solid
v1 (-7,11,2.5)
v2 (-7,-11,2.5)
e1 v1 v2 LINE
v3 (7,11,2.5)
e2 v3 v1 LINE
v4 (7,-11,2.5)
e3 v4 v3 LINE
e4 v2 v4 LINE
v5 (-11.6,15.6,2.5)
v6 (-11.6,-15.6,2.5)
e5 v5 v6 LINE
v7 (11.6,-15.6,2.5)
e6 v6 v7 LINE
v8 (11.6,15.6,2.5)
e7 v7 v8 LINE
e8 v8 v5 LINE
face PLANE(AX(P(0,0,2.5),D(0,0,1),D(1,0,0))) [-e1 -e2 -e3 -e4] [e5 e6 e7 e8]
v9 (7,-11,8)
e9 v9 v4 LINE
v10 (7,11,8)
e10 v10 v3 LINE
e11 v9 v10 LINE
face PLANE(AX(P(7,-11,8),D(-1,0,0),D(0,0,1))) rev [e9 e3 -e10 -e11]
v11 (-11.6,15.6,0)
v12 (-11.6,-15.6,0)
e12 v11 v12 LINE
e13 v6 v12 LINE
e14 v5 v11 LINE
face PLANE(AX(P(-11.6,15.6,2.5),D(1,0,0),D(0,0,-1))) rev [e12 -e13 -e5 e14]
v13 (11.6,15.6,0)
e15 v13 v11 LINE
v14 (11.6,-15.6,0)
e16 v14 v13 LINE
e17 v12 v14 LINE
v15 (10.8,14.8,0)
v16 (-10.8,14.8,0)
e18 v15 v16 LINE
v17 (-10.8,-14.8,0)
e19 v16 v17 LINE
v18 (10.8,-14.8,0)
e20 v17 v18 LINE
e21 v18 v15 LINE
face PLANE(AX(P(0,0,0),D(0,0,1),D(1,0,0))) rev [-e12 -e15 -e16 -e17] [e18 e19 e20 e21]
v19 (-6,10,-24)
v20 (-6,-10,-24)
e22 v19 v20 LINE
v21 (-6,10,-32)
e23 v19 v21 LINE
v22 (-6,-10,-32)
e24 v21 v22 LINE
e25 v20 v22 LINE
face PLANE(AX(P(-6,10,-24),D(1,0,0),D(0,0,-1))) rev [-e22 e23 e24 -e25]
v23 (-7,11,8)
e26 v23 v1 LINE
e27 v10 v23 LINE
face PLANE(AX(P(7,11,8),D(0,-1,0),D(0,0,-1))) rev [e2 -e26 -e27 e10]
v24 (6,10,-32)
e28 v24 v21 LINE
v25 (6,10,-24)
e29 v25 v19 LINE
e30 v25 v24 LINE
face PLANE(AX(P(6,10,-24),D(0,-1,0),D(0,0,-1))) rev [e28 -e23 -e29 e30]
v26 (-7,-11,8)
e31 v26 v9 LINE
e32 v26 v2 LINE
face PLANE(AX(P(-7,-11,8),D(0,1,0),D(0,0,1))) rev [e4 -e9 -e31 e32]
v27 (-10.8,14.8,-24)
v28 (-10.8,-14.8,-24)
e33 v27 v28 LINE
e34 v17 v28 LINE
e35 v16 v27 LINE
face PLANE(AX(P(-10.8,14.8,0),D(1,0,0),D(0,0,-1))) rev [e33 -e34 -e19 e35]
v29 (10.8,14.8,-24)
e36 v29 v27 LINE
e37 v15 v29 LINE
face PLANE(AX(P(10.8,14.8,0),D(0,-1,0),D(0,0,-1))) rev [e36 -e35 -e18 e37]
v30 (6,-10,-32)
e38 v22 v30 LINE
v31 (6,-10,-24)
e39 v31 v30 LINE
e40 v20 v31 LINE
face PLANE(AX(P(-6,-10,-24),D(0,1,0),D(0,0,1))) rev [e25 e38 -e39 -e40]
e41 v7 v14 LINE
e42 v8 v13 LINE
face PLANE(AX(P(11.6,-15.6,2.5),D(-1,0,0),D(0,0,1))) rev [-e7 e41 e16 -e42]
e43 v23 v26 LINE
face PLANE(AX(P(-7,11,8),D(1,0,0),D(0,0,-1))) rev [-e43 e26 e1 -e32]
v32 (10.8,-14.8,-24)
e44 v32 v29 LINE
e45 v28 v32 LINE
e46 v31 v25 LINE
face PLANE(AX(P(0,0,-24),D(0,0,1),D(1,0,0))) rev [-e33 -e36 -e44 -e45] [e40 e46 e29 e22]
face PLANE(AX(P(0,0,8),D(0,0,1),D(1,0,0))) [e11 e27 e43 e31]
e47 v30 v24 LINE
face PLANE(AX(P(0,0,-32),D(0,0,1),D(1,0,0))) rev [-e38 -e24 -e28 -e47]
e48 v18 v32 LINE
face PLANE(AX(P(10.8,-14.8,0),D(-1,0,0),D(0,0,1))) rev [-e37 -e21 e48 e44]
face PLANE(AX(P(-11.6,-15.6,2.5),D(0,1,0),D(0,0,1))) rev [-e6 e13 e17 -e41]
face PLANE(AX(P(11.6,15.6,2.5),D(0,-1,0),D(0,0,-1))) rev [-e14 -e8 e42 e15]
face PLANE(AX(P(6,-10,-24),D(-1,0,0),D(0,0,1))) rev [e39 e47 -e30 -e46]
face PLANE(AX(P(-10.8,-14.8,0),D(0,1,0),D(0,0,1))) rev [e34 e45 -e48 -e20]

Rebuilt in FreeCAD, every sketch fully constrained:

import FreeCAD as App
import Part
import Sketcher
from FreeCAD import Vector
Q = App.Units.Quantity


def add_polygon(sketch, points):
    """Adds a closed chain of lines whose ends are joined by coincident constraints."""
    first, n = sketch.GeometryCount, len(points)
    for a, b in zip(points, points[1:] + points[:1]):
        sketch.addGeometry(Part.LineSegment(App.Vector(*a, 0), App.Vector(*b, 0)), False)
    for i in range(n):
        sketch.addConstraint(Sketcher.Constraint("Coincident", first + i, 2, first + (i + 1) % n, 1))

doc = App.newDocument("Part")
params = doc.addObject("Spreadsheet::Sheet", "Params")
for row, (alias, value) in enumerate([
    ("sketch1_width", "23.2 mm"),
    ("sketch1_height", "31.2 mm"),
    ("pad1_length", "2.5 mm"),
    ("sketch2_width", "14 mm"),
    ("sketch2_height", "22 mm"),
    ("pad2_length", "5.5 mm"),
    ("sketch3_width", "21.6 mm"),
    ("sketch3_height", "29.6 mm"),
    ("pad3_length", "24 mm"),
    ("sketch4_width", "12 mm"),
    ("sketch4_height", "20 mm"),
    ("pad4_length", "8 mm"),
], start=1):
    params.set(f"A{row}", alias)
    params.set(f"B{row}", "=" + value)
    params.setAlias(f"B{row}", alias)

body = doc.addObject("PartDesign::Body", "Body")

# Sketch on XY plane
sketch1 = body.newObject("Sketcher::SketchObject", "Sketch")
sketch1.AttachmentSupport = (doc.getObject("XY_Plane"), [""])
sketch1.MapMode = "FlatFace"
add_polygon(sketch1, [(-12, 16), (-12, -16), (12, -16), (12, 16)])  # lines 0-3
sketch1.addConstraint([
    Sketcher.Constraint("Vertical", 0),
    Sketcher.Constraint("Horizontal", 1),
    Sketcher.Constraint("Vertical", 2),
    Sketcher.Constraint("Horizontal", 3),
    Sketcher.Constraint("Symmetric", 0, 2, 2, 2, -1, 1),
    Sketcher.Constraint("DistanceX", 1, 1, 1, 2, Q("23.2 mm")),
    Sketcher.Constraint("DistanceY", 0, 2, 0, 1, Q("31.2 mm")),
])
sketch1.setExpression("Constraints[9]", "Params.sketch1_width")
sketch1.setExpression("Constraints[10]", "Params.sketch1_height")
pad1 = body.newObject("PartDesign::Pad", "Pad")
pad1.Profile = sketch1
pad1.setExpression("Length", "Params.pad1_length")

# Sketch on XY plane
sketch2 = body.newObject("Sketcher::SketchObject", "Sketch001")
sketch2.AttachmentSupport = (doc.getObject("XY_Plane"), [""])
sketch2.MapMode = "FlatFace"
sketch2.AttachmentOffset = App.Placement(Vector(0, 0, 2.5), App.Rotation())
add_polygon(sketch2, [(-7, 11), (-7, -11), (7, -11), (7, 11)])  # lines 0-3
sketch2.addConstraint([
    Sketcher.Constraint("Vertical", 0),
    Sketcher.Constraint("Horizontal", 1),
    Sketcher.Constraint("Vertical", 2),
    Sketcher.Constraint("Horizontal", 3),
    Sketcher.Constraint("Symmetric", 0, 2, 2, 2, -1, 1),
    Sketcher.Constraint("DistanceX", 1, 1, 1, 2, Q("14 mm")),
    Sketcher.Constraint("DistanceY", 0, 2, 0, 1, Q("22 mm")),
])
sketch2.setExpression("Constraints[9]", "Params.sketch2_width")
sketch2.setExpression("Constraints[10]", "Params.sketch2_height")
pad2 = body.newObject("PartDesign::Pad", "Pad001")
pad2.Profile = sketch2
pad2.setExpression("Length", "Params.pad2_length")

# Sketch on XY plane
sketch3 = body.newObject("Sketcher::SketchObject", "Sketch002")
sketch3.AttachmentSupport = (doc.getObject("XY_Plane"), [""])
sketch3.MapMode = "FlatFace"
sketch3.AttachmentOffset = App.Placement(Vector(0, 0, -24), App.Rotation())
add_polygon(sketch3, [(-11, 15), (-11, -15), (11, -15), (11, 15)])  # lines 0-3
sketch3.addConstraint([
    Sketcher.Constraint("Vertical", 0),
    Sketcher.Constraint("Horizontal", 1),
    Sketcher.Constraint("Vertical", 2),
    Sketcher.Constraint("Horizontal", 3),
    Sketcher.Constraint("Symmetric", 0, 2, 2, 2, -1, 1),
    Sketcher.Constraint("DistanceX", 1, 1, 1, 2, Q("21.6 mm")),
    Sketcher.Constraint("DistanceY", 0, 2, 0, 1, Q("29.6 mm")),
])
sketch3.setExpression("Constraints[9]", "Params.sketch3_width")
sketch3.setExpression("Constraints[10]", "Params.sketch3_height")
pad3 = body.newObject("PartDesign::Pad", "Pad002")
pad3.Profile = sketch3
pad3.setExpression("Length", "Params.pad3_length")

# Sketch on XY plane
sketch4 = body.newObject("Sketcher::SketchObject", "Sketch003")
sketch4.AttachmentSupport = (doc.getObject("XY_Plane"), [""])
sketch4.MapMode = "FlatFace"
sketch4.AttachmentOffset = App.Placement(Vector(0, 0, -32), App.Rotation())
add_polygon(sketch4, [(-6, 10), (-6, -10), (6, -10), (6, 10)])  # lines 0-3
sketch4.addConstraint([
    Sketcher.Constraint("Vertical", 0),
    Sketcher.Constraint("Horizontal", 1),
    Sketcher.Constraint("Vertical", 2),
    Sketcher.Constraint("Horizontal", 3),
    Sketcher.Constraint("Symmetric", 0, 2, 2, 2, -1, 1),
    Sketcher.Constraint("DistanceX", 1, 1, 1, 2, Q("12 mm")),
    Sketcher.Constraint("DistanceY", 0, 2, 0, 1, Q("20 mm")),
])
sketch4.setExpression("Constraints[9]", "Params.sketch4_width")
sketch4.setExpression("Constraints[10]", "Params.sketch4_height")
pad4 = body.newObject("PartDesign::Pad", "Pad003")
pad4.Profile = sketch4
pad4.setExpression("Length", "Params.pad4_length")

doc.recompute()
